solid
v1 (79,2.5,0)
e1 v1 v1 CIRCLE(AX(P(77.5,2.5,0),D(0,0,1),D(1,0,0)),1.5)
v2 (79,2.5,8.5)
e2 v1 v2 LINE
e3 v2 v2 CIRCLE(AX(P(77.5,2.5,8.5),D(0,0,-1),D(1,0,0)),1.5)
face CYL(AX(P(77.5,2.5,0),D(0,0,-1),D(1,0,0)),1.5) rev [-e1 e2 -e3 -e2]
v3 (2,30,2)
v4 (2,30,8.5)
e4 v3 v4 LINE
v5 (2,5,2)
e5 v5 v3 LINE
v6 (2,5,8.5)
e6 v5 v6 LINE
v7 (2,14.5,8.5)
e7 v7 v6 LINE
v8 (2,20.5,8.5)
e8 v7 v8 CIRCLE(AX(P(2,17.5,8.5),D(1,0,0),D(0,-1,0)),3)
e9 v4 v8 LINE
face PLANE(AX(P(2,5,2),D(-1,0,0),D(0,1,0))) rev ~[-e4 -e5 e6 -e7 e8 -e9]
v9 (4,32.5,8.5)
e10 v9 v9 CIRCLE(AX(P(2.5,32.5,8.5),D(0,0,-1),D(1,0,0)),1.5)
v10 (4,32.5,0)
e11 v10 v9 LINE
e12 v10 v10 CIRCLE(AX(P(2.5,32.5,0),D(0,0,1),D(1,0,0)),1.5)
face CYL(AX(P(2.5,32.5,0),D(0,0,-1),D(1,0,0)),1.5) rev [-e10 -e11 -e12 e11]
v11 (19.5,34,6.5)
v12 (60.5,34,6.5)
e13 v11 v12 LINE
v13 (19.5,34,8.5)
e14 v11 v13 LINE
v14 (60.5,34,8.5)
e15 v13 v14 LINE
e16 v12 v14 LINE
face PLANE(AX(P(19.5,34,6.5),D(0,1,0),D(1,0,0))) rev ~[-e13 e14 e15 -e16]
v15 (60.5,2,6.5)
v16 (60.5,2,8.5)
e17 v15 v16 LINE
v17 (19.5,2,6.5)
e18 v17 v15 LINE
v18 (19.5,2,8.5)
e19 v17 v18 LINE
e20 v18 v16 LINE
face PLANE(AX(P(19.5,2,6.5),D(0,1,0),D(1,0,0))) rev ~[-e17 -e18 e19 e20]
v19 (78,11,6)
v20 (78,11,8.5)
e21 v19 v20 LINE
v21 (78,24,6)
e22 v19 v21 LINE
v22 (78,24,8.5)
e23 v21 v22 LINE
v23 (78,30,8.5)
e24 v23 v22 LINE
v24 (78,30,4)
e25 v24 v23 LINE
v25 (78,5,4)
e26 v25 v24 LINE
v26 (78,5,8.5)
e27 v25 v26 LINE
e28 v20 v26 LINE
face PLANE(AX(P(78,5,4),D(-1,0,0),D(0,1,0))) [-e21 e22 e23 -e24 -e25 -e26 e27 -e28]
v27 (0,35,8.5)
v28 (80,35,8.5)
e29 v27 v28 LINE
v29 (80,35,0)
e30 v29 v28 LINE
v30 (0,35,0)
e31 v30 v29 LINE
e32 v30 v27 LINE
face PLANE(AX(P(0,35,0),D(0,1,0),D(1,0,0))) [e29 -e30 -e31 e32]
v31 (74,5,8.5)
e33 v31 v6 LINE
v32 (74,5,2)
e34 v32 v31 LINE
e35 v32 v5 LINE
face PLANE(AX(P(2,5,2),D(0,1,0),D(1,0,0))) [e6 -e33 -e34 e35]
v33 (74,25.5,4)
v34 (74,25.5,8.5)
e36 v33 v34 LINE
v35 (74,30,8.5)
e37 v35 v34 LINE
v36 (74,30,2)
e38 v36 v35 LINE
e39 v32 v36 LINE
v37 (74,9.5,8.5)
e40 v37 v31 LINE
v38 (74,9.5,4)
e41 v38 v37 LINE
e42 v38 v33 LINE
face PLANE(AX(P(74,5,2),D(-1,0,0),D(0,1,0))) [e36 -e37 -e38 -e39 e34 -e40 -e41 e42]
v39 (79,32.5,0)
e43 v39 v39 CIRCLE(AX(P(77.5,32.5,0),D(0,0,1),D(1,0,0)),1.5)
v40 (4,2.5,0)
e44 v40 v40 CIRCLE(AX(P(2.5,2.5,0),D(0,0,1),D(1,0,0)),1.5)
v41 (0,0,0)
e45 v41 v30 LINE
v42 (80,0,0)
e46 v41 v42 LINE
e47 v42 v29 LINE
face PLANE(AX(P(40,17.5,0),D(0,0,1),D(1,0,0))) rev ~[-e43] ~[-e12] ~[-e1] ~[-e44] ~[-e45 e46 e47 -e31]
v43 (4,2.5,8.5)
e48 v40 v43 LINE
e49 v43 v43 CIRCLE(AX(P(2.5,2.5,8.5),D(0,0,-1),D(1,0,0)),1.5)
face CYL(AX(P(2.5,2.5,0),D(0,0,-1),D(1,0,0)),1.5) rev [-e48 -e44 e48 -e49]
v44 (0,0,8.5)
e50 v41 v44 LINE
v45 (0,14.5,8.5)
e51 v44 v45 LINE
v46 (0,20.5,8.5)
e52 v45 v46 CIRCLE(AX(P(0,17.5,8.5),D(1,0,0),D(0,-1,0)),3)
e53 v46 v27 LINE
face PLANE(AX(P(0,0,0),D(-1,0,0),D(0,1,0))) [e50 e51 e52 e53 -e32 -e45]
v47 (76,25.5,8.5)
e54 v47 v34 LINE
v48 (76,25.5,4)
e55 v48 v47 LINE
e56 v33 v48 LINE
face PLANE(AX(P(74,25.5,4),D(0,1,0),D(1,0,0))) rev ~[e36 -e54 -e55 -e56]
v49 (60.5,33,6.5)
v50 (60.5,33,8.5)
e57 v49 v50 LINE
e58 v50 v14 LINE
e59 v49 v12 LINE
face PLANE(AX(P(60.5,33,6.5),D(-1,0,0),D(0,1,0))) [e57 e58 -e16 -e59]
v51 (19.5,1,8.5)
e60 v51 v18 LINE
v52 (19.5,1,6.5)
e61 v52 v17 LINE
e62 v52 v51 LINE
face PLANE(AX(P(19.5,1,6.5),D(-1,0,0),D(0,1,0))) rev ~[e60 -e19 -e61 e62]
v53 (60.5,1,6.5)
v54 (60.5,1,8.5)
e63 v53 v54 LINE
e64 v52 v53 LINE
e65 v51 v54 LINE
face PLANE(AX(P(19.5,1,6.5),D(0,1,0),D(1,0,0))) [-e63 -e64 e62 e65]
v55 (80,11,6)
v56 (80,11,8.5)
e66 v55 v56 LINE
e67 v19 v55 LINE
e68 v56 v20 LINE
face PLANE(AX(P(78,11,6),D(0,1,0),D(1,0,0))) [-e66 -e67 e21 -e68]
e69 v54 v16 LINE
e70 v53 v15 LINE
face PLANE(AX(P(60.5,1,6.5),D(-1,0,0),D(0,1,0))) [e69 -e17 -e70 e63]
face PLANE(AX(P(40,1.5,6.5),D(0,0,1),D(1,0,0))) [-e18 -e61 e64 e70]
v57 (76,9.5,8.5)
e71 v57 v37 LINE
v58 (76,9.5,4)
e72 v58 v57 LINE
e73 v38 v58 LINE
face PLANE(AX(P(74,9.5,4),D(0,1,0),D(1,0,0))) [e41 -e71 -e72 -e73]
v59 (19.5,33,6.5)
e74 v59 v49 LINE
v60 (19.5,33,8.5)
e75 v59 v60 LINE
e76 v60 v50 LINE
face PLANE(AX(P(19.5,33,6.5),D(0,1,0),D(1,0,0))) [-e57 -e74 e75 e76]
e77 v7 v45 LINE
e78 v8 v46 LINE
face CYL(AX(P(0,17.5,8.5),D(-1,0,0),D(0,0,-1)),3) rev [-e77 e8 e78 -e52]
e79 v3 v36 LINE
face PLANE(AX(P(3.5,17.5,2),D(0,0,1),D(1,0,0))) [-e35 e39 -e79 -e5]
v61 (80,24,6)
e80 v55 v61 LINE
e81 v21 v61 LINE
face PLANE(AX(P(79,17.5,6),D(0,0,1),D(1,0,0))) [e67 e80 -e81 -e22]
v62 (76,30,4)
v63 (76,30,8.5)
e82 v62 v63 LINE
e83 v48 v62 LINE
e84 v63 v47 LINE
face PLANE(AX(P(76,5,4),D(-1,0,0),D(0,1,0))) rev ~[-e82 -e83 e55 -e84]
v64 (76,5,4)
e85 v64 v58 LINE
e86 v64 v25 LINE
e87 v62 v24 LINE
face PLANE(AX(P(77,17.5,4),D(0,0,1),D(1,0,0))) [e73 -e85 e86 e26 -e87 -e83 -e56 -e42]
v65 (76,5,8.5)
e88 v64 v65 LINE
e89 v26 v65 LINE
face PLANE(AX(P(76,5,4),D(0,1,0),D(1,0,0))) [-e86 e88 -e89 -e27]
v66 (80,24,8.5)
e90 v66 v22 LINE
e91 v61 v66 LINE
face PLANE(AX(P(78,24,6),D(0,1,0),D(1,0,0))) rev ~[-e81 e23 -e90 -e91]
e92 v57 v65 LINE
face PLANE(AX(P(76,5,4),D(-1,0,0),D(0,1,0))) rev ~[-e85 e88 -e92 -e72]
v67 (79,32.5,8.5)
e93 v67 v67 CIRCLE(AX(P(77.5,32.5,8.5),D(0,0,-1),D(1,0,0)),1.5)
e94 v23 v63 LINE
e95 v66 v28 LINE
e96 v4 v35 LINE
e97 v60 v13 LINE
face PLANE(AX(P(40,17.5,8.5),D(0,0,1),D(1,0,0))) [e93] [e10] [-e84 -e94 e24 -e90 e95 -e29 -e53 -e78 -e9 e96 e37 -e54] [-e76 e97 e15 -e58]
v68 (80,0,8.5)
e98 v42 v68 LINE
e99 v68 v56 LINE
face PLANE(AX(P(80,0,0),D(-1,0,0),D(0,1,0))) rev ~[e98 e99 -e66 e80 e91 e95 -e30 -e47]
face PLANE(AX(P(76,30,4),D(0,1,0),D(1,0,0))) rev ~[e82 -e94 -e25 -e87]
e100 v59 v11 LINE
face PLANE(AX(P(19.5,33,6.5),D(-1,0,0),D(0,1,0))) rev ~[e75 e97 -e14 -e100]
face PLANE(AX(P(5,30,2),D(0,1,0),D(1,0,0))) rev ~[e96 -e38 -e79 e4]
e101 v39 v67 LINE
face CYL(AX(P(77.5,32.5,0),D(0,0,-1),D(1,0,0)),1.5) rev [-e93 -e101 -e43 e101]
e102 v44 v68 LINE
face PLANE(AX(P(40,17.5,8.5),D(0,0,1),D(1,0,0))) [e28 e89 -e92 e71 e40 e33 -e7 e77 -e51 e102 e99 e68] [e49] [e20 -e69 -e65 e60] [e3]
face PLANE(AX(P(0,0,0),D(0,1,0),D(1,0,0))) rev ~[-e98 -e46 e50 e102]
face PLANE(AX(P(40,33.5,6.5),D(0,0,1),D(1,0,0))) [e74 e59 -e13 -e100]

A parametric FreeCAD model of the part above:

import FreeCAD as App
import Part
import Sketcher
from FreeCAD import Vector

doc = App.newDocument("Part")
body = doc.addObject("PartDesign::Body", "Body")

# Sketch on XY plane
sketch1 = doc.addObject("Sketcher::SketchObject", "Sketch")
body.addObject(sketch1)
sketch1.AttachmentSupport = (doc.XY_Plane, [""])
sketch1.MapMode = "FlatFace"
sketch1.AttachmentOffset = App.Placement(Vector(0, 0, 6.5), App.Rotation())
sketch1.addGeometry([
    Part.LineSegment(Vector(19.5, 2, 0), Vector(19.5, 1, 0)),
    Part.LineSegment(Vector(19.5, 1, 0), Vector(60.5, 1, 0)),
    Part.LineSegment(Vector(60.5, 1, 0), Vector(60.5, 2, 0)),
    Part.LineSegment(Vector(60.5, 2, 0), Vector(19.5, 2, 0)),
], False)
sketch1.addConstraint([
    Sketcher.Constraint("Coincident", 0, 2, 1, 1),
    Sketcher.Constraint("Coincident", 1, 2, 2, 1),
    Sketcher.Constraint("Coincident", 2, 2, 3, 1),
    Sketcher.Constraint("Coincident", 3, 2, 0, 1),
    Sketcher.Constraint("Vertical", 0),
    Sketcher.Constraint("Horizontal", 1),
    Sketcher.Constraint("Vertical", 2),
    Sketcher.Constraint("Horizontal", 3),
    Sketcher.Constraint("DistanceX", 1, 1, 1, 2, 41.0),
    Sketcher.Constraint("DistanceY", 0, 2, 0, 1, 1.0),
    Sketcher.Constraint("DistanceY", -1, 1, 0, 2, 1.0),
    Sketcher.Constraint("DistanceX", -1, 1, 0, 2, 19.5),
])
pad1 = doc.addObject("PartDesign::Pad", "Pad")
body.addObject(pad1)
pad1.Profile = sketch1
pad1.Length = 2
body2 = doc.addObject("PartDesign::Body", "Body001")

# Sketch on XY plane
sketch2 = doc.addObject("Sketcher::SketchObject", "Sketch001")
body2.addObject(sketch2)
sketch2.AttachmentSupport = (doc.getObject("XY_Plane001"), [""])
sketch2.MapMode = "FlatFace"
sketch2.AttachmentOffset = App.Placement(Vector(0, 0, 6.5), App.Rotation())
sketch2.addGeometry([
    Part.LineSegment(Vector(19.5, 34, 0), Vector(19.5, 33, 0)),
    Part.LineSegment(Vector(19.5, 33, 0), Vector(60.5, 33, 0)),
    Part.LineSegment(Vector(60.5, 33, 0), Vector(60.5, 34, 0)),
    Part.LineSegment(Vector(60.5, 34, 0), Vector(19.5, 34, 0)),
], False)
sketch2.addConstraint([
    Sketcher.Constraint("Coincident", 0, 2, 1, 1),
    Sketcher.Constraint("Coincident", 1, 2, 2, 1),
    Sketcher.Constraint("Coincident", 2, 2, 3, 1),
    Sketcher.Constraint("Coincident", 3, 2, 0, 1),
    Sketcher.Constraint("Vertical", 0),
    Sketcher.Constraint("Horizontal", 1),
    Sketcher.Constraint("Vertical", 2),
    Sketcher.Constraint("Horizontal", 3),
    Sketcher.Constraint("DistanceX", 1, 1, 1, 2, 41.0),
    Sketcher.Constraint("DistanceY", 0, 2, 0, 1, 1.0),
    Sketcher.Constraint("DistanceY", -1, 1, 0, 2, 33.0),
    Sketcher.Constraint("DistanceX", -1, 1, 0, 2, 19.5),
])
pad2 = doc.addObject("PartDesign::Pad", "Pad001")
body2.addObject(pad2)
pad2.Profile = sketch2
pad2.Length = 2
body3 = doc.addObject("PartDesign::Body", "Body002")

# Sketch on XY plane
sketch3 = doc.addObject("Sketcher::SketchObject", "Sketch002")
body3.addObject(sketch3)
sketch3.AttachmentSupport = (doc.getObject("XY_Plane002"), [""])
sketch3.MapMode = "FlatFace"
sketch3.addGeometry(Part.Circle(Vector(2.5, 32.5, 0), Vector(0, 0, 1), 1.5), False)
sketch3.addConstraint([
    Sketcher.Constraint("Diameter", 0, 3.0),
    Sketcher.Constraint("DistanceX", -1, 1, 0, 3, 2.5),
    Sketcher.Constraint("DistanceY", -1, 1, 0, 3, 32.5),
])
pad3 = doc.addObject("PartDesign::Pad", "Pad002")
body3.addObject(pad3)
pad3.Profile = sketch3
pad3.Length = 10
body4 = doc.addObject("PartDesign::Body", "Body003")

# Sketch on XY plane
sketch4 = doc.addObject("Sketcher::SketchObject", "Sketch003")
body4.addObject(sketch4)
sketch4.AttachmentSupport = (doc.getObject("XY_Plane003"), [""])
sketch4.MapMode = "FlatFace"
sketch4.addGeometry(Part.Circle(Vector(77.5, 32.5, 0), Vector(0, 0, 1), 1.5), False)
sketch4.addConstraint([
    Sketcher.Constraint("Diameter", 0, 3.0),
    Sketcher.Constraint("DistanceX", -1, 1, 0, 3, 77.5),
    Sketcher.Constraint("DistanceY", -1, 1, 0, 3, 32.5),
])
pad4 = doc.addObject("PartDesign::Pad", "Pad003")
body4.addObject(pad4)
pad4.Profile = sketch4
pad4.Length = 10
body5 = doc.addObject("PartDesign::Body", "Body004")

# Sketch on XY plane
sketch5 = doc.addObject("Sketcher::SketchObject", "Sketch004")
body5.addObject(sketch5)
sketch5.AttachmentSupport = (doc.getObject("XY_Plane004"), [""])
sketch5.MapMode = "FlatFace"
sketch5.addGeometry(Part.Circle(Vector(77.5, 2.5, 0), Vector(0, 0, 1), 1.5), False)
sketch5.addConstraint([
    Sketcher.Constraint("Diameter", 0, 3.0),
    Sketcher.Constraint("DistanceX", -1, 1, 0, 3, 77.5),
    Sketcher.Constraint("DistanceY", -1, 1, 0, 3, 2.5),
])
pad5 = doc.addObject("PartDesign::Pad", "Pad004")
body5.addObject(pad5)
pad5.Profile = sketch5
pad5.Length = 10
body6 = doc.addObject("PartDesign::Body", "Body005")

# Sketch on XY plane
sketch6 = doc.addObject("Sketcher::SketchObject", "Sketch005")
body6.addObject(sketch6)
sketch6.AttachmentSupport = (doc.getObject("XY_Plane005"), [""])
sketch6.MapMode = "FlatFace"
sketch6.addGeometry(Part.Circle(Vector(2.5, 2.5, 0), Vector(0, 0, 1), 1.5), False)
sketch6.addConstraint([
    Sketcher.Constraint("Diameter", 0, 3.0),
    Sketcher.Constraint("DistanceX", -1, 1, 0, 3, 2.5),
    Sketcher.Constraint("DistanceY", -1, 1, 0, 3, 2.5),
])
pad6 = doc.addObject("PartDesign::Pad", "Pad005")
body6.addObject(pad6)
pad6.Profile = sketch6
pad6.Length = 10
body7 = doc.addObject("PartDesign::Body", "Body006")

# Sketch on XY plane
sketch7 = doc.addObject("Sketcher::SketchObject", "Sketch006")
body7.addObject(sketch7)
sketch7.AttachmentSupport = (doc.getObject("XY_Plane006"), [""])
sketch7.MapMode = "FlatFace"
sketch7.AttachmentOffset = App.Placement(Vector(0, 0, 2), App.Rotation())
sketch7.addGeometry([
    Part.LineSegment(Vector(2, 30, 0), Vector(2, 5, 0)),
    Part.LineSegment(Vector(2, 5, 0), Vector(5, 5, 0)),
    Part.LineSegment(Vector(5, 5, 0), Vector(5, 30, 0)),
    Part.LineSegment(Vector(5, 30, 0), Vector(2, 30, 0)),
], False)
sketch7.addConstraint([
    Sketcher.Constraint("Coincident", 0, 2, 1, 1),
    Sketcher.Constraint("Coincident", 1, 2, 2, 1),
    Sketcher.Constraint("Coincident", 2, 2, 3, 1),
    Sketcher.Constraint("Coincident", 3, 2, 0, 1),
    Sketcher.Constraint("Vertical", 0),
    Sketcher.Constraint("Horizontal", 1),
    Sketcher.Constraint("Vertical", 2),
    Sketcher.Constraint("Horizontal", 3),
    Sketcher.Constraint("DistanceX", 1, 1, 1, 2, 3.0),
    Sketcher.Constraint("DistanceY", 0, 2, 0, 1, 25.0),
    Sketcher.Constraint("DistanceX", -1, 1, 0, 2, 2.0),
    Sketcher.Constraint("DistanceY", -1, 1, 0, 2, 5.0),
])
pad7 = doc.addObject("PartDesign::Pad", "Pad006")
body7.addObject(pad7)
pad7.Profile = sketch7
pad7.Length = 10
body8 = doc.addObject("PartDesign::Body", "Body007")

# Sketch on XY plane
sketch8 = doc.addObject("Sketcher::SketchObject", "Sketch007")
body8.addObject(sketch8)
sketch8.AttachmentSupport = (doc.getObject("XY_Plane007"), [""])
sketch8.MapMode = "FlatFace"
sketch8.AttachmentOffset = App.Placement(Vector(0, 0, 4), App.Rotation())
sketch8.addGeometry([
    Part.LineSegment(Vector(74, 25.5, 0), Vector(74, 9.5, 0)),
    Part.LineSegment(Vector(74, 9.5, 0), Vector(76, 9.5, 0)),
    Part.LineSegment(Vector(76, 9.5, 0), Vector(76, 25.5, 0)),
    Part.LineSegment(Vector(76, 25.5, 0), Vector(74, 25.5, 0)),
], False)
sketch8.addConstraint([
    Sketcher.Constraint("Coincident", 0, 2, 1, 1),
    Sketcher.Constraint("Coincident", 1, 2, 2, 1),
    Sketcher.Constraint("Coincident", 2, 2, 3, 1),
    Sketcher.Constraint("Coincident", 3, 2, 0, 1),
    Sketcher.Constraint("Vertical", 0),
    Sketcher.Constraint("Horizontal", 1),
    Sketcher.Constraint("Vertical", 2),
    Sketcher.Constraint("Horizontal", 3),
    Sketcher.Constraint("DistanceX", 1, 1, 1, 2, 2.0),
    Sketcher.Constraint("DistanceY", 0, 2, 0, 1, 16.0),
    Sketcher.Constraint("DistanceX", -1, 1, 0, 2, 74.0),
    Sketcher.Constraint("DistanceY", -1, 1, 0, 2, 9.5),
])
pad8 = doc.addObject("PartDesign::Pad", "Pad007")
body8.addObject(pad8)
pad8.Profile = sketch8
pad8.Length = 9
body9 = doc.addObject("PartDesign::Body", "Body008")

# Sketch on XY plane
sketch9 = doc.addObject("Sketcher::SketchObject", "Sketch008")
body9.addObject(sketch9)
sketch9.AttachmentSupport = (doc.getObject("XY_Plane008"), [""])
sketch9.MapMode = "FlatFace"
sketch9.AttachmentOffset = App.Placement(Vector(0, 0, 6), App.Rotation())
sketch9.addGeometry([
    Part.LineSegment(Vector(78, 24, 0), Vector(78, 11, 0)),
    Part.LineSegment(Vector(78, 11, 0), Vector(80, 11, 0)),
    Part.LineSegment(Vector(80, 11, 0), Vector(80, 24, 0)),
    Part.LineSegment(Vector(80, 24, 0), Vector(78, 24, 0)),
], False)
sketch9.addConstraint([
    Sketcher.Constraint("Coincident", 0, 2, 1, 1),
    Sketcher.Constraint("Coincident", 1, 2, 2, 1),
    Sketcher.Constraint("Coincident", 2, 2, 3, 1),
    Sketcher.Constraint("Coincident", 3, 2, 0, 1),
    Sketcher.Constraint("Vertical", 0),
    Sketcher.Constraint("Horizontal", 1),
    Sketcher.Constraint("Vertical", 2),
    Sketcher.Constraint("Horizontal", 3),
    Sketcher.Constraint("DistanceX", 1, 1, 1, 2, 2.0),
    Sketcher.Constraint("DistanceY", 0, 2, 0, 1, 13.0),
    Sketcher.Constraint("DistanceX", -1, 1, 0, 2, 78.0),
    Sketcher.Constraint("DistanceY", -1, 1, 0, 2, 11.0),
])
pad9 = doc.addObject("PartDesign::Pad", "Pad008")
body9.addObject(pad9)
pad9.Profile = sketch9
pad9.Length = 5
body10 = doc.addObject("PartDesign::Body", "Body009")

# Sketch on XY plane
sketch10 = doc.addObject("Sketcher::SketchObject", "Sketch009")
body10.addObject(sketch10)
sketch10.AttachmentSupport = (doc.getObject("XY_Plane009"), [""])
sketch10.MapMode = "FlatFace"
sketch10.AttachmentOffset = App.Placement(Vector(0, 0, 4), App.Rotation())
sketch10.addGeometry([
    Part.LineSegment(Vector(76, 30, 0), Vector(76, 5, 0)),
    Part.LineSegment(Vector(76, 5, 0), Vector(78, 5, 0)),
    Part.LineSegment(Vector(78, 5, 0), Vector(78, 30, 0)),
    Part.LineSegment(Vector(78, 30, 0), Vector(76, 30, 0)),
], False)
sketch10.addConstraint([
    Sketcher.Constraint("Coincident", 0, 2, 1, 1),
    Sketcher.Constraint("Coincident", 1, 2, 2, 1),
    Sketcher.Constraint("Coincident", 2, 2, 3, 1),
    Sketcher.Constraint("Coincident", 3, 2, 0, 1),
    Sketcher.Constraint("Vertical", 0),
    Sketcher.Constraint("Horizontal", 1),
    Sketcher.Constraint("Vertical", 2),
    Sketcher.Constraint("Horizontal", 3),
    Sketcher.Constraint("DistanceX", 1, 1, 1, 2, 2.0),
    Sketcher.Constraint("DistanceY", 0, 2, 0, 1, 25.0),
    Sketcher.Constraint("DistanceX", -1, 1, 0, 2, 76.0),
    Sketcher.Constraint("DistanceY", -1, 1, 0, 2, 5.0),
])
pad10 = doc.addObject("PartDesign::Pad", "Pad009")
body10.addObject(pad10)
pad10.Profile = sketch10
pad10.Length = 9
body11 = doc.addObject("PartDesign::Body", "Body010")

# Sketch on XY plane
sketch11 = doc.addObject("Sketcher::SketchObject", "Sketch010")
body11.addObject(sketch11)
sketch11.AttachmentSupport = (doc.getObject("XY_Plane010"), [""])
sketch11.MapMode = "FlatFace"
sketch11.addGeometry(Part.Circle(Vector(0, 0, 0), Vector(0, 0, 1), 3), False)
sketch11.addConstraint([
    Sketcher.Constraint("Coincident", 0, 3, -1, 1),
    Sketcher.Constraint("Diameter", 0, 6.0),
])
pad11 = doc.addObject("PartDesign::Pad", "Pad010")
body11.addObject(pad11)
pad11.Profile = sketch11
pad11.Length = 2
body12 = doc.addObject("PartDesign::Body", "Body011")
doc.recompute()

body11.Placement = App.Placement(Vector(0, 0, 0), App.Rotation(Vector(0, 1, 0), 90))
boolean = doc.addObject("PartDesign::Boolean", "Boolean")
body12.addObject(boolean)
boolean.Type = "Fuse"
boolean.addObjects([body11])
body13 = doc.addObject("PartDesign::Body", "Body012")
doc.recompute()

body12.Placement = App.Placement(Vector(0, 17.5, 8.5), App.Rotation(Vector(0, 0, 1), 0))
boolean2 = doc.addObject("PartDesign::Boolean", "Boolean001")
body13.addObject(boolean2)
boolean2.Type = "Fuse"
boolean2.addObjects([body12])
body14 = doc.addObject("PartDesign::Body", "Body013")

# Sketch on XY plane
sketch12 = doc.addObject("Sketcher::SketchObject", "Sketch011")
body14.addObject(sketch12)
sketch12.AttachmentSupport = (doc.getObject("XY_Plane013"), [""])
sketch12.MapMode = "FlatFace"
sketch12.AttachmentOffset = App.Placement(Vector(0, 0, 2), App.Rotation())
sketch12.addGeometry([
    Part.LineSegment(Vector(5, 30, 0), Vector(5, 5, 0)),
    Part.LineSegment(Vector(5, 5, 0), Vector(74, 5, 0)),
    Part.LineSegment(Vector(74, 5, 0), Vector(74, 30, 0)),
    Part.LineSegment(Vector(74, 30, 0), Vector(5, 30, 0)),
], False)
sketch12.addConstraint([
    Sketcher.Constraint("Coincident", 0, 2, 1, 1),
    Sketcher.Constraint("Coincident", 1, 2, 2, 1),
    Sketcher.Constraint("Coincident", 2, 2, 3, 1),
    Sketcher.Constraint("Coincident", 3, 2, 0, 1),
    Sketcher.Constraint("Vertical", 0),
    Sketcher.Constraint("Horizontal", 1),
    Sketcher.Constraint("Vertical", 2),
    Sketcher.Constraint("Horizontal", 3),
    Sketcher.Constraint("DistanceX", 1, 1, 1, 2, 69.0),
    Sketcher.Constraint("DistanceY", 0, 2, 0, 1, 25.0),
    Sketcher.Constraint("DistanceX", -1, 1, 0, 2, 5.0),
    Sketcher.Constraint("DistanceY", -1, 1, 0, 2, 5.0),
])
pad12 = doc.addObject("PartDesign::Pad", "Pad011")
body14.addObject(pad12)
pad12.Profile = sketch12
pad12.Length = 13
body15 = doc.addObject("PartDesign::Body", "Body014")

# Sketch on XY plane
sketch13 = doc.addObject("Sketcher::SketchObject", "Sketch012")
body15.addObject(sketch13)
sketch13.AttachmentSupport = (doc.getObject("XY_Plane014"), [""])
sketch13.MapMode = "FlatFace"
sketch13.addGeometry([
    Part.LineSegment(Vector(0, 35, 0), Vector(0, 0, 0)),
    Part.LineSegment(Vector(0, 0, 0), Vector(80, 0, 0)),
    Part.LineSegment(Vector(80, 0, 0), Vector(80, 35, 0)),
    Part.LineSegment(Vector(80, 35, 0), Vector(0, 35, 0)),
], False)
sketch13.addConstraint([
    Sketcher.Constraint("Coincident", 0, 2, 1, 1),
    Sketcher.Constraint("Coincident", 1, 2, 2, 1),
    Sketcher.Constraint("Coincident", 2, 2, 3, 1),
    Sketcher.Constraint("Coincident", 3, 2, 0, 1),
    Sketcher.Constraint("Vertical", 0),
    Sketcher.Constraint("Horizontal", 1),
    Sketcher.Constraint("Vertical", 2),
    Sketcher.Constraint("Horizontal", 3),
    Sketcher.Constraint("Coincident", 0, 2, -1, 1),
    Sketcher.Constraint("DistanceX", 1, 1, 1, 2, 80.0),
    Sketcher.Constraint("DistanceY", 0, 2, 0, 1, 35.0),
])
pad13 = doc.addObject("PartDesign::Pad", "Pad012")
body15.addObject(pad13)
pad13.Profile = sketch13
pad13.Length = 8.5
doc.recompute()

boolean3 = doc.addObject("PartDesign::Boolean", "Boolean002")
body15.addObject(boolean3)
boolean3.Type = "Cut"
boolean3.addObjects([body14])
doc.recompute()

boolean4 = doc.addObject("PartDesign::Boolean", "Boolean003")
body15.addObject(boolean4)
boolean4.Type = "Cut"
boolean4.addObjects([body13])
doc.recompute()

boolean5 = doc.addObject("PartDesign::Boolean", "Boolean004")
body15.addObject(boolean5)
boolean5.Type = "Cut"
boolean5.addObjects([body10])
doc.recompute()

boolean6 = doc.addObject("PartDesign::Boolean", "Boolean005")
body15.addObject(boolean6)
boolean6.Type = "Cut"
boolean6.addObjects([body9])
doc.recompute()

boolean7 = doc.addObject("PartDesign::Boolean", "Boolean006")
body15.addObject(boolean7)
boolean7.Type = "Cut"
boolean7.addObjects([body8])
doc.recompute()

boolean8 = doc.addObject("PartDesign::Boolean", "Boolean007")
body15.addObject(boolean8)
boolean8.Type = "Cut"
boolean8.addObjects([body7])
doc.recompute()

boolean9 = doc.addObject("PartDesign::Boolean", "Boolean008")
body15.addObject(boolean9)
boolean9.Type = "Cut"
boolean9.addObjects([body6])
doc.recompute()

boolean10 = doc.addObject("PartDesign::Boolean", "Boolean009")
body15.addObject(boolean10)
boolean10.Type = "Cut"
boolean10.addObjects([body5])
doc.recompute()

boolean11 = doc.addObject("PartDesign::Boolean", "Boolean010")
body15.addObject(boolean11)
boolean11.Type = "Cut"
boolean11.addObjects([body4])
doc.recompute()

boolean12 = doc.addObject("PartDesign::Boolean", "Boolean011")
body15.addObject(boolean12)
boolean12.Type = "Cut"
boolean12.addObjects([body3])
doc.recompute()

boolean13 = doc.addObject("PartDesign::Boolean", "Boolean012")
body15.addObject(boolean13)
boolean13.Type = "Cut"
boolean13.addObjects([body2])
doc.recompute()

boolean14 = doc.addObject("PartDesign::Boolean", "Boolean013")
body15.addObject(boolean14)
boolean14.Type = "Cut"
boolean14.addObjects([body])

doc.recompute()
